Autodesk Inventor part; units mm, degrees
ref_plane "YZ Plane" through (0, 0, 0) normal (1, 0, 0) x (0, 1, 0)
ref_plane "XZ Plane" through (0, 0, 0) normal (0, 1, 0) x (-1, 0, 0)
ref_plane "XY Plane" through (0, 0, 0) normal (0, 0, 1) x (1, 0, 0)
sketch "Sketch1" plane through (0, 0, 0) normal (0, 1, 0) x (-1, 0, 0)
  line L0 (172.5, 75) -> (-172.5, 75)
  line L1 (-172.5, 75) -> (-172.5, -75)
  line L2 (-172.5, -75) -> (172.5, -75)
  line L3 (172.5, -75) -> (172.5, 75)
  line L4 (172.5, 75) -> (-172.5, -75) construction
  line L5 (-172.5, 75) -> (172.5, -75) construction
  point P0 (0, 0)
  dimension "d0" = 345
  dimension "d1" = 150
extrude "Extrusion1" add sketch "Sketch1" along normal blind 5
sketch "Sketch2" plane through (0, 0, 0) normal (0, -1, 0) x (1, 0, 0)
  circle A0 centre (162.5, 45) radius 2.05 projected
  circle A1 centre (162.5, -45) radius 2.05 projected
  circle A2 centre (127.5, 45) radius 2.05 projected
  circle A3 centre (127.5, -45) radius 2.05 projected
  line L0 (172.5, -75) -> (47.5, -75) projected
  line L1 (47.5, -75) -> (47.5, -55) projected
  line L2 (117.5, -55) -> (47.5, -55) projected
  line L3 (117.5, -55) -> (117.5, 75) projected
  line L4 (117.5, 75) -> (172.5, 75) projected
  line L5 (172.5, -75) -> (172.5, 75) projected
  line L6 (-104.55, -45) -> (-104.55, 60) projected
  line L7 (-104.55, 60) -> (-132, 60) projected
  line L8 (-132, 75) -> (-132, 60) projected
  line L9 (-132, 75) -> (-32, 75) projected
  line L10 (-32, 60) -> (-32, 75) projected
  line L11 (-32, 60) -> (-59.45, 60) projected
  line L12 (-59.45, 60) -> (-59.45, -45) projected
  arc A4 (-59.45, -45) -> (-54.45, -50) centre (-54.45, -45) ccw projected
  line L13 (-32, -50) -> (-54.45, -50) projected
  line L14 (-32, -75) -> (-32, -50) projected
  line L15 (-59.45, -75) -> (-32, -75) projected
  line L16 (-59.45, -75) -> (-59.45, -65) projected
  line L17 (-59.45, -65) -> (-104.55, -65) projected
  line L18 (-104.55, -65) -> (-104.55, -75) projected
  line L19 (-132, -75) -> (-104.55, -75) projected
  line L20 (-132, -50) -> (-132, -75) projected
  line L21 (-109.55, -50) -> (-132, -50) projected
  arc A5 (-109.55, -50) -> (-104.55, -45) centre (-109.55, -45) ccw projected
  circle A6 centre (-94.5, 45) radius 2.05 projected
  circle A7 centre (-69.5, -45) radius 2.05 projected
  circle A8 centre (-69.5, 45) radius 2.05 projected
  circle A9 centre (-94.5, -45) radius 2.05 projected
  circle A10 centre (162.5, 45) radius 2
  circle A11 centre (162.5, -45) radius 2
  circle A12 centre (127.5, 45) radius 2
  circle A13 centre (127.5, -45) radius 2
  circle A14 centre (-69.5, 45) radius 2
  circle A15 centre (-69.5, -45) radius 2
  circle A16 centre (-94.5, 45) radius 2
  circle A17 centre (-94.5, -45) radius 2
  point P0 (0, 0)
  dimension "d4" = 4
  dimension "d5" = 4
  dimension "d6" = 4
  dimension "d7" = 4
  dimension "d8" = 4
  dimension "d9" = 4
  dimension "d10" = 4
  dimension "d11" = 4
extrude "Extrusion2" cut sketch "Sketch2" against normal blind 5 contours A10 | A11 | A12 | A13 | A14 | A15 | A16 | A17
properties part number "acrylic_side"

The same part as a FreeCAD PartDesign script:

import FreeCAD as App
import Part
import Sketcher
from FreeCAD import Vector

doc = App.newDocument("Part")
body = doc.addObject("PartDesign::Body", "Body")

sketch1 = body.newObject("Sketcher::SketchObject", "Sketch")
sketch1.AttachmentSupport = (doc.getObject("XZ_Plane"), [""])
sketch1.MapMode = "FlatFace"
sketch1.addGeometry(Part.LineSegment(Vector(-172, -75, 0), Vector(-172, 75, 0)), False)
sketch1.addGeometry(Part.LineSegment(Vector(-172, 75, 0), Vector(172, 75, 0)), False)
sketch1.addGeometry(Part.LineSegment(Vector(172, 75, 0), Vector(172, -75, 0)), False)
sketch1.addGeometry(Part.LineSegment(Vector(172, -75, 0), Vector(-172, -75, 0)), False)
sketch1.addConstraint(Sketcher.Constraint("Coincident", 0, 2, 1, 1))
sketch1.addConstraint(Sketcher.Constraint("Coincident", 1, 2, 2, 1))
sketch1.addConstraint(Sketcher.Constraint("Coincident", 2, 2, 3, 1))
sketch1.addConstraint(Sketcher.Constraint("Coincident", 3, 2, 0, 1))
sketch1.addConstraint(Sketcher.Constraint("Vertical", 0))
sketch1.addConstraint(Sketcher.Constraint("Horizontal", 1))
sketch1.addConstraint(Sketcher.Constraint("Vertical", 2))
sketch1.addConstraint(Sketcher.Constraint("Horizontal", 3))
sketch1.addConstraint(Sketcher.Constraint("Symmetric", 0, 2, 2, 2, -1, 1))
sketch1.addConstraint(Sketcher.Constraint("DistanceX", 1, 1, 1, 2, 345.0))
sketch1.addConstraint(Sketcher.Constraint("DistanceY", 0, 1, 0, 2, 150.0))
pad1 = body.newObject("PartDesign::Pad", "Pad")
pad1.Profile = sketch1
pad1.Length = 5
pad1.Reversed = True

sketch2 = body.newObject("Sketcher::SketchObject", "Sketch001")
sketch2.AttachmentSupport = (doc.getObject("XZ_Plane"), [""])
sketch2.MapMode = "FlatFace"
sketch2.addGeometry(Part.Circle(Vector(162.5, 45, 0), Vector(0, 0, 1), 2), False)
sketch2.addGeometry(Part.Circle(Vector(162.5, -45, 0), Vector(0, 0, 1), 2), False)
sketch2.addGeometry(Part.Circle(Vector(127.5, 45, 0), Vector(0, 0, 1), 2), False)
sketch2.addGeometry(Part.Circle(Vector(127.5, -45, 0), Vector(0, 0, 1), 2), False)
sketch2.addGeometry(Part.Circle(Vector(-69.5, 45, 0), Vector(0, 0, 1), 2), False)
sketch2.addGeometry(Part.Circle(Vector(-69.5, -45, 0), Vector(0, 0, 1), 2), False)
sketch2.addGeometry(Part.Circle(Vector(-94.5, 45, 0), Vector(0, 0, 1), 2), False)
sketch2.addGeometry(Part.Circle(Vector(-94.5, -45, 0), Vector(0, 0, 1), 2), False)
sketch2.addConstraint(Sketcher.Constraint("Equal", 0, 1))
sketch2.addConstraint(Sketcher.Constraint("Equal", 1, 2))
sketch2.addConstraint(Sketcher.Constraint("Equal", 2, 3))
sketch2.addConstraint(Sketcher.Constraint("Equal", 3, 4))
sketch2.addConstraint(Sketcher.Constraint("Equal", 4, 5))
sketch2.addConstraint(Sketcher.Constraint("Equal", 5, 6))
sketch2.addConstraint(Sketcher.Constraint("Equal", 6, 7))
sketch2.addConstraint(Sketcher.Constraint("Symmetric", 0, 3, 1, 3, -1))
sketch2.addConstraint(Sketcher.Constraint("Symmetric", 2, 3, 3, 3, -1))
sketch2.addConstraint(Sketcher.Constraint("Symmetric", 4, 3, 5, 3, -1))
sketch2.addConstraint(Sketcher.Constraint("Symmetric", 6, 3, 7, 3, -1))
sketch2.addConstraint(Sketcher.Constraint("Horizontal", 0, 3, 2, 3))
sketch2.addConstraint(Sketcher.Constraint("Horizontal", 2, 3, 4, 3))
sketch2.addConstraint(Sketcher.Constraint("Horizontal", 4, 3, 6, 3))
sketch2.addConstraint(Sketcher.Constraint("Diameter", 0, 4.0))
sketch2.addConstraint(Sketcher.Constraint("DistanceY", -1, 1, 0, 3, 45.0))
sketch2.addConstraint(Sketcher.Constraint("DistanceX", 2, 3, 0, 3, 35.0))
sketch2.addConstraint(Sketcher.Constraint("DistanceX", 4, 3, 2, 3, 197.0))
sketch2.addConstraint(Sketcher.Constraint("DistanceX", 6, 3, 4, 3, 25.0))
sketch2.addConstraint(Sketcher.Constraint("DistanceX", -1, 1, 0, 3, 162.5))
pocket1 = body.newObject("PartDesign::Pocket", "Pocket")
pocket1.Profile = sketch2
pocket1.Length = 5

doc.recompute()
